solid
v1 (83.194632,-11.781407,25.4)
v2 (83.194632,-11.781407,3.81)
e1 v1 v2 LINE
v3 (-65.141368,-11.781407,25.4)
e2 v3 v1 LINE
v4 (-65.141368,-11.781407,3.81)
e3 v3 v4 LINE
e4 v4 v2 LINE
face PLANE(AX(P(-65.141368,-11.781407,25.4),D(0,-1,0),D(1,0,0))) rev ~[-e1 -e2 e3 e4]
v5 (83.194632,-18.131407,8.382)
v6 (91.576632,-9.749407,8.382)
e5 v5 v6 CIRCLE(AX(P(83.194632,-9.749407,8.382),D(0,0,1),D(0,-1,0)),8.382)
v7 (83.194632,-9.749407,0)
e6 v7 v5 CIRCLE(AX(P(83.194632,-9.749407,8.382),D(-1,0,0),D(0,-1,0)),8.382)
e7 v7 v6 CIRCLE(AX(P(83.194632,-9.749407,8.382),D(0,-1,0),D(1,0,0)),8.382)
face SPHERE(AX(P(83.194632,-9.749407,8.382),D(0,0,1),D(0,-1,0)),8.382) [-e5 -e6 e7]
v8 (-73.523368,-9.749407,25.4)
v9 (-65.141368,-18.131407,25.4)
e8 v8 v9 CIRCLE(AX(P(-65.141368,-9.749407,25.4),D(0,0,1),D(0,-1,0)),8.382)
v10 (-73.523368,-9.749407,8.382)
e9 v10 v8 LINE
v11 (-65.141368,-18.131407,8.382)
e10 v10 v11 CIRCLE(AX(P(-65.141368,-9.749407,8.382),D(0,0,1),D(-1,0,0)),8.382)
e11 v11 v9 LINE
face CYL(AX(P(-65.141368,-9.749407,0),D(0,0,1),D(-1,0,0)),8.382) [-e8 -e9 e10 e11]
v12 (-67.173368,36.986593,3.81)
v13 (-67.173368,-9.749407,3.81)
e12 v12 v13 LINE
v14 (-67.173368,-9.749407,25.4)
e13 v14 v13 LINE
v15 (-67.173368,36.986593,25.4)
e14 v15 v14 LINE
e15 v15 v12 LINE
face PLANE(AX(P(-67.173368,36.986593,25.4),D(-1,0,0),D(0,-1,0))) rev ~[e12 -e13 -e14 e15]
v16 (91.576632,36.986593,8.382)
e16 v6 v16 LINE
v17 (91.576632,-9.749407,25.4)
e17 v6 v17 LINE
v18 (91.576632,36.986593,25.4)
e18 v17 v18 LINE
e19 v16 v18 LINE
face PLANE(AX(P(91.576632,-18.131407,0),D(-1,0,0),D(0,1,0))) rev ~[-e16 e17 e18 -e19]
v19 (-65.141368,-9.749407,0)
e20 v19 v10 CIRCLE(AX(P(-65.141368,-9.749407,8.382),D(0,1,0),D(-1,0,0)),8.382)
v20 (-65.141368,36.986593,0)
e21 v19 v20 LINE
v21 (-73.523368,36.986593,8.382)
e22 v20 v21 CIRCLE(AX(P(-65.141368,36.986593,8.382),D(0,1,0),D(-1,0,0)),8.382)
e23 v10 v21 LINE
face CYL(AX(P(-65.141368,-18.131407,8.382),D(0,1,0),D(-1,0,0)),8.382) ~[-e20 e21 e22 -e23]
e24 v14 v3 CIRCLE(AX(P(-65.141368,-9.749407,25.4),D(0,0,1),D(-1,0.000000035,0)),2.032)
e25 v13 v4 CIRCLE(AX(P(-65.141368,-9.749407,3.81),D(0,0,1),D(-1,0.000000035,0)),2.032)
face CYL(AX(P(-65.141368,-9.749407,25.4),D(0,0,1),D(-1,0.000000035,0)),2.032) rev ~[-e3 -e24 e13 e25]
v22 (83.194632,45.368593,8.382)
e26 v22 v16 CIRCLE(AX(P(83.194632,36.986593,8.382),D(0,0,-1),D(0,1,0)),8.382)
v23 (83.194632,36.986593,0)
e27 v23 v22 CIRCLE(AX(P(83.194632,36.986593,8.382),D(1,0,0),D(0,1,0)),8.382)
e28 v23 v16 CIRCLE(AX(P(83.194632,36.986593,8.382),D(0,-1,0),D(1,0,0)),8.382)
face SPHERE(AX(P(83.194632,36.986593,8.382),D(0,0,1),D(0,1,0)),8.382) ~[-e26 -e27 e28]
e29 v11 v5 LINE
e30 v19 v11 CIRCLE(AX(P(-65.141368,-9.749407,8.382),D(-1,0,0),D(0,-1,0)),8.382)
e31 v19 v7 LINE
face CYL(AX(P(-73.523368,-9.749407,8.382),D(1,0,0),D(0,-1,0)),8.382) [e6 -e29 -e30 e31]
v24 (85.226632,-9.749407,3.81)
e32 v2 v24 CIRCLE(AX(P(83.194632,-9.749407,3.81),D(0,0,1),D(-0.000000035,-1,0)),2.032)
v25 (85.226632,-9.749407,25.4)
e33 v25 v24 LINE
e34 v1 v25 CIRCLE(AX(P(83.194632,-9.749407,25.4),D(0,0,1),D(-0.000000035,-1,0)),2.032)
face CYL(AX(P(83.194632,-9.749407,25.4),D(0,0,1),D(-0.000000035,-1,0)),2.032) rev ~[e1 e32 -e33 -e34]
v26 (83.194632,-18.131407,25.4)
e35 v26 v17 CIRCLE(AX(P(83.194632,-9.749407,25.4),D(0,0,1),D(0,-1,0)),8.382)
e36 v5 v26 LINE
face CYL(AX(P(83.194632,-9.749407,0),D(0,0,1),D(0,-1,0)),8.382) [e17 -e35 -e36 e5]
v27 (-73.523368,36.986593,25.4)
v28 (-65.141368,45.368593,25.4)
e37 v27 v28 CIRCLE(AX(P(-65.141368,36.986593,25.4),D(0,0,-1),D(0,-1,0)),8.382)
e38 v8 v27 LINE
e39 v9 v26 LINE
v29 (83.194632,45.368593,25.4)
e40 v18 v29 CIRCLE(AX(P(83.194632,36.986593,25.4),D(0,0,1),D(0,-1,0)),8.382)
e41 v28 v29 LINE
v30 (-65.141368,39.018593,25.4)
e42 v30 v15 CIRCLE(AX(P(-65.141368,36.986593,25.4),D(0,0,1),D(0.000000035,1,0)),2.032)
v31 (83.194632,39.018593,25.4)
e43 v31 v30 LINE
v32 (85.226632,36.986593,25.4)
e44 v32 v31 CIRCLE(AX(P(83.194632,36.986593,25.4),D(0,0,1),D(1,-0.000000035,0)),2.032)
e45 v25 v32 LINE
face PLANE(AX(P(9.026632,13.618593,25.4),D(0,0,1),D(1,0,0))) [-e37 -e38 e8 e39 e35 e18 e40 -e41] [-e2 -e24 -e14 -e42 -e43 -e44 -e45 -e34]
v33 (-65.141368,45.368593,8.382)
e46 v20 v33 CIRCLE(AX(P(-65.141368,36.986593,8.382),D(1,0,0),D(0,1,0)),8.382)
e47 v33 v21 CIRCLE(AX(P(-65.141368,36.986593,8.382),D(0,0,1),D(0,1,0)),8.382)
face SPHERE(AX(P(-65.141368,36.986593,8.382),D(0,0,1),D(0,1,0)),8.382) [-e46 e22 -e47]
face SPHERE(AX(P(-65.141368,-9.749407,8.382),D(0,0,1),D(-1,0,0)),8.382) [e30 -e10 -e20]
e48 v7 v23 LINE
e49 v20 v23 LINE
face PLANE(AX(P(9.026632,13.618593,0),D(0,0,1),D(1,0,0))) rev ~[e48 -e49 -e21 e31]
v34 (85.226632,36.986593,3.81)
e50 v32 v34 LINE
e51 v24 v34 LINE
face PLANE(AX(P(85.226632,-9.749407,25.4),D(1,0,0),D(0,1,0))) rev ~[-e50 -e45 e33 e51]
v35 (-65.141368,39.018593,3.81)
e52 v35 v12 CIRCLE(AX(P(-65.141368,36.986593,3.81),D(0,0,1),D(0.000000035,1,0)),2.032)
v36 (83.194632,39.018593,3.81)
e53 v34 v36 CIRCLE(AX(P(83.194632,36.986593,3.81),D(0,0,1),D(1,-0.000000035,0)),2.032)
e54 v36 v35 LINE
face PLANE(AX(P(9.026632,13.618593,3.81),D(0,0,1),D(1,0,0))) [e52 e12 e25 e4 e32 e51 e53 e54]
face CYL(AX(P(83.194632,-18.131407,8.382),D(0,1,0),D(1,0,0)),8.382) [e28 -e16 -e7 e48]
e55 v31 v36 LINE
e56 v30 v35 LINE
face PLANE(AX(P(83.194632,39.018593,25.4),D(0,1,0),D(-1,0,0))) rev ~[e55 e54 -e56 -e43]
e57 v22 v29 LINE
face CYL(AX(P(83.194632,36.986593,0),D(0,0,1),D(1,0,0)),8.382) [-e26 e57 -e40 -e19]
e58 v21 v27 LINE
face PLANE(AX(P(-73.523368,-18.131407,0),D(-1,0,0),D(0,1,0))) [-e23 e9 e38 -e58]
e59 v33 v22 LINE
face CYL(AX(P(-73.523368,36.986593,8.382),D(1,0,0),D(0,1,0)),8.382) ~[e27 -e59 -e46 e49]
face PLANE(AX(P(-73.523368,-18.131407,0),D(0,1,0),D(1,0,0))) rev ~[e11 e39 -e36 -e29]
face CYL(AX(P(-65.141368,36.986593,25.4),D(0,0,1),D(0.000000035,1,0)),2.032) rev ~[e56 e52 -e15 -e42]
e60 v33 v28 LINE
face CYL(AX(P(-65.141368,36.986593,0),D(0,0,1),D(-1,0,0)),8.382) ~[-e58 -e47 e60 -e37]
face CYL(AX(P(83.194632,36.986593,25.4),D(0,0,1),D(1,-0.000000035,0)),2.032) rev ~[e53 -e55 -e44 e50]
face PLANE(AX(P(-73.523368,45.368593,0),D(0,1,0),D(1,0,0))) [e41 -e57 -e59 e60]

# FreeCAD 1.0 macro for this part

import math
import FreeCAD as App
import Part
import Sketcher
Q = App.Units.Quantity


def edges_at(feature, points):
    """Names of the edges that pass closest to the given points."""
    edges = feature.Shape.Edges
    near = lambda p: min(range(len(edges)), key=lambda i: edges[i].distToShape(Part.Vertex(*p))[0])
    return sorted({f"Edge{near(p) + 1}" for p in points})


def add_polygon(sketch, points):
    """Adds a closed chain of lines whose ends are joined by coincident constraints."""
    first, n = sketch.GeometryCount, len(points)
    for a, b in zip(points, points[1:] + points[:1]):
        sketch.addGeometry(Part.LineSegment(App.Vector(*a, 0), App.Vector(*b, 0)), False)
    for i in range(n):
        sketch.addConstraint(Sketcher.Constraint("Coincident", first + i, 2, first + (i + 1) % n, 1))

doc = App.newDocument("Part")
body = doc.addObject("PartDesign::Body", "Body")

# Sketch on XY plane
sketch1 = body.newObject("Sketcher::SketchObject", "Sketch")
sketch1.AttachmentSupport = (doc.getObject("XY_Plane"), [""])
sketch1.MapMode = "FlatFace"
add_polygon(sketch1, [(-73.523368, 45.368593), (-73.523368, -18.131407), (91.576632, -18.131407), (91.576632, 45.368593)])  # lines 0-3
sketch1.addConstraint([
    Sketcher.Constraint("Vertical", 0),
    Sketcher.Constraint("Horizontal", 1),
    Sketcher.Constraint("Vertical", 2),
    Sketcher.Constraint("Horizontal", 3),
    Sketcher.Constraint("DistanceX", 1, 1, 1, 2, Q("6.5 in")),
    Sketcher.Constraint("DistanceY", 0, 2, 0, 1, Q("2.5 in")),
    Sketcher.Constraint("DistanceX", 0, 2, -1, 1, 73.523368),
    Sketcher.Constraint("DistanceY", 0, 2, -1, 1, 18.131407),
])
pad1 = body.newObject("PartDesign::Pad", "Pad")
pad1.Profile = sketch1
pad1.Length = Q("1 in")
doc.recompute()

fillet = body.newObject("PartDesign::Fillet", "Fillet")
fillet.Base = (pad1, edges_at(pad1, [
    (91.577, -18.131, 12.7),
    (91.577, 45.369, 12.7),
    (-73.523, 45.369, 12.7),
    (-73.523, -18.131, 12.7),
    (9.027, 45.369, 0),
    (-73.523, 13.619, 0),
    (9.027, -18.131, 0),
    (91.577, 13.619, 0),
]))
fillet.Radius = Q("0.33 in")

# Sketch on XY plane
sketch2 = body.newObject("Sketcher::SketchObject", "Sketch001")
sketch2.AttachmentSupport = (doc.getObject("XY_Plane"), [""])
sketch2.MapMode = "FlatFace"
sketch2.AttachmentOffset = App.Placement(App.Vector(0, 0, 1 * 25.4), App.Rotation())
sketch2.addGeometry([
    Part.LineSegment(App.Vector(85.226632, -9.749407, 0), App.Vector(85.226632, 36.986593, 0)),  # 0
    Part.ArcOfCircle(Part.Circle(App.Vector(83.194632, 36.986593, 0), App.Vector(0, 0, 1), 2.032), math.radians(-0.000002), math.radians(90.000002)),  # 1
    Part.LineSegment(App.Vector(83.194632, 39.018593, 0), App.Vector(-65.141368, 39.018593, 0)),  # 2
    Part.ArcOfCircle(Part.Circle(App.Vector(-65.141368, 36.986593, 0), App.Vector(0, 0, 1), 2.032), math.radians(89.999998), math.radians(180.000002)),  # 3
    Part.LineSegment(App.Vector(-67.173368, 36.986593, 0), App.Vector(-67.173368, -9.749407, 0)),  # 4
    Part.ArcOfCircle(Part.Circle(App.Vector(-65.141368, -9.749407, 0), App.Vector(0, 0, 1), 2.032), math.radians(179.999998), math.radians(270.000002)),  # 5
    Part.LineSegment(App.Vector(-65.141368, -11.781407, 0), App.Vector(83.194632, -11.781407, 0)),  # 6
    Part.ArcOfCircle(Part.Circle(App.Vector(83.194632, -9.749407, 0), App.Vector(0, 0, 1), 2.032), math.radians(-90.000002), math.radians(0.000002)),  # 7
], False)
sketch2.addConstraint([
    Sketcher.Constraint("Tangent", 0, 2, 1, 1),
    Sketcher.Constraint("Tangent", 1, 2, 2, 1),
    Sketcher.Constraint("Tangent", 2, 2, 3, 1),
    Sketcher.Constraint("Tangent", 3, 2, 4, 1),
    Sketcher.Constraint("Tangent", 4, 2, 5, 1),
    Sketcher.Constraint("Tangent", 5, 2, 6, 1),
    Sketcher.Constraint("Tangent", 6, 2, 7, 1),
    Sketcher.Constraint("Tangent", 7, 2, 0, 1),
    Sketcher.Constraint("Vertical", 0),
    Sketcher.Constraint("Horizontal", 2),
    Sketcher.Constraint("Vertical", 4),
    Sketcher.Constraint("Horizontal", 6),
    Sketcher.Constraint("Equal", 1, 3),
    Sketcher.Constraint("Equal", 3, 5),
    Sketcher.Constraint("Equal", 5, 7),
    Sketcher.Constraint("Radius", 1, Q("0.08 in")),
    Sketcher.Constraint("DistanceY", 5, 2, 2, 2, Q("2 in")),
    Sketcher.Constraint("DistanceX", 2, 2, 2, 1, Q("5.84 in")),
    Sketcher.Constraint("DistanceX", 3, 3, -1, 1, 65.141368),
    Sketcher.Constraint("DistanceY", -1, 1, 1, 3, 36.986593),
])
pocket1 = body.newObject("PartDesign::Pocket", "Pocket")
pocket1.Profile = sketch2
pocket1.Length = Q("0.85 in")

doc.recompute()
